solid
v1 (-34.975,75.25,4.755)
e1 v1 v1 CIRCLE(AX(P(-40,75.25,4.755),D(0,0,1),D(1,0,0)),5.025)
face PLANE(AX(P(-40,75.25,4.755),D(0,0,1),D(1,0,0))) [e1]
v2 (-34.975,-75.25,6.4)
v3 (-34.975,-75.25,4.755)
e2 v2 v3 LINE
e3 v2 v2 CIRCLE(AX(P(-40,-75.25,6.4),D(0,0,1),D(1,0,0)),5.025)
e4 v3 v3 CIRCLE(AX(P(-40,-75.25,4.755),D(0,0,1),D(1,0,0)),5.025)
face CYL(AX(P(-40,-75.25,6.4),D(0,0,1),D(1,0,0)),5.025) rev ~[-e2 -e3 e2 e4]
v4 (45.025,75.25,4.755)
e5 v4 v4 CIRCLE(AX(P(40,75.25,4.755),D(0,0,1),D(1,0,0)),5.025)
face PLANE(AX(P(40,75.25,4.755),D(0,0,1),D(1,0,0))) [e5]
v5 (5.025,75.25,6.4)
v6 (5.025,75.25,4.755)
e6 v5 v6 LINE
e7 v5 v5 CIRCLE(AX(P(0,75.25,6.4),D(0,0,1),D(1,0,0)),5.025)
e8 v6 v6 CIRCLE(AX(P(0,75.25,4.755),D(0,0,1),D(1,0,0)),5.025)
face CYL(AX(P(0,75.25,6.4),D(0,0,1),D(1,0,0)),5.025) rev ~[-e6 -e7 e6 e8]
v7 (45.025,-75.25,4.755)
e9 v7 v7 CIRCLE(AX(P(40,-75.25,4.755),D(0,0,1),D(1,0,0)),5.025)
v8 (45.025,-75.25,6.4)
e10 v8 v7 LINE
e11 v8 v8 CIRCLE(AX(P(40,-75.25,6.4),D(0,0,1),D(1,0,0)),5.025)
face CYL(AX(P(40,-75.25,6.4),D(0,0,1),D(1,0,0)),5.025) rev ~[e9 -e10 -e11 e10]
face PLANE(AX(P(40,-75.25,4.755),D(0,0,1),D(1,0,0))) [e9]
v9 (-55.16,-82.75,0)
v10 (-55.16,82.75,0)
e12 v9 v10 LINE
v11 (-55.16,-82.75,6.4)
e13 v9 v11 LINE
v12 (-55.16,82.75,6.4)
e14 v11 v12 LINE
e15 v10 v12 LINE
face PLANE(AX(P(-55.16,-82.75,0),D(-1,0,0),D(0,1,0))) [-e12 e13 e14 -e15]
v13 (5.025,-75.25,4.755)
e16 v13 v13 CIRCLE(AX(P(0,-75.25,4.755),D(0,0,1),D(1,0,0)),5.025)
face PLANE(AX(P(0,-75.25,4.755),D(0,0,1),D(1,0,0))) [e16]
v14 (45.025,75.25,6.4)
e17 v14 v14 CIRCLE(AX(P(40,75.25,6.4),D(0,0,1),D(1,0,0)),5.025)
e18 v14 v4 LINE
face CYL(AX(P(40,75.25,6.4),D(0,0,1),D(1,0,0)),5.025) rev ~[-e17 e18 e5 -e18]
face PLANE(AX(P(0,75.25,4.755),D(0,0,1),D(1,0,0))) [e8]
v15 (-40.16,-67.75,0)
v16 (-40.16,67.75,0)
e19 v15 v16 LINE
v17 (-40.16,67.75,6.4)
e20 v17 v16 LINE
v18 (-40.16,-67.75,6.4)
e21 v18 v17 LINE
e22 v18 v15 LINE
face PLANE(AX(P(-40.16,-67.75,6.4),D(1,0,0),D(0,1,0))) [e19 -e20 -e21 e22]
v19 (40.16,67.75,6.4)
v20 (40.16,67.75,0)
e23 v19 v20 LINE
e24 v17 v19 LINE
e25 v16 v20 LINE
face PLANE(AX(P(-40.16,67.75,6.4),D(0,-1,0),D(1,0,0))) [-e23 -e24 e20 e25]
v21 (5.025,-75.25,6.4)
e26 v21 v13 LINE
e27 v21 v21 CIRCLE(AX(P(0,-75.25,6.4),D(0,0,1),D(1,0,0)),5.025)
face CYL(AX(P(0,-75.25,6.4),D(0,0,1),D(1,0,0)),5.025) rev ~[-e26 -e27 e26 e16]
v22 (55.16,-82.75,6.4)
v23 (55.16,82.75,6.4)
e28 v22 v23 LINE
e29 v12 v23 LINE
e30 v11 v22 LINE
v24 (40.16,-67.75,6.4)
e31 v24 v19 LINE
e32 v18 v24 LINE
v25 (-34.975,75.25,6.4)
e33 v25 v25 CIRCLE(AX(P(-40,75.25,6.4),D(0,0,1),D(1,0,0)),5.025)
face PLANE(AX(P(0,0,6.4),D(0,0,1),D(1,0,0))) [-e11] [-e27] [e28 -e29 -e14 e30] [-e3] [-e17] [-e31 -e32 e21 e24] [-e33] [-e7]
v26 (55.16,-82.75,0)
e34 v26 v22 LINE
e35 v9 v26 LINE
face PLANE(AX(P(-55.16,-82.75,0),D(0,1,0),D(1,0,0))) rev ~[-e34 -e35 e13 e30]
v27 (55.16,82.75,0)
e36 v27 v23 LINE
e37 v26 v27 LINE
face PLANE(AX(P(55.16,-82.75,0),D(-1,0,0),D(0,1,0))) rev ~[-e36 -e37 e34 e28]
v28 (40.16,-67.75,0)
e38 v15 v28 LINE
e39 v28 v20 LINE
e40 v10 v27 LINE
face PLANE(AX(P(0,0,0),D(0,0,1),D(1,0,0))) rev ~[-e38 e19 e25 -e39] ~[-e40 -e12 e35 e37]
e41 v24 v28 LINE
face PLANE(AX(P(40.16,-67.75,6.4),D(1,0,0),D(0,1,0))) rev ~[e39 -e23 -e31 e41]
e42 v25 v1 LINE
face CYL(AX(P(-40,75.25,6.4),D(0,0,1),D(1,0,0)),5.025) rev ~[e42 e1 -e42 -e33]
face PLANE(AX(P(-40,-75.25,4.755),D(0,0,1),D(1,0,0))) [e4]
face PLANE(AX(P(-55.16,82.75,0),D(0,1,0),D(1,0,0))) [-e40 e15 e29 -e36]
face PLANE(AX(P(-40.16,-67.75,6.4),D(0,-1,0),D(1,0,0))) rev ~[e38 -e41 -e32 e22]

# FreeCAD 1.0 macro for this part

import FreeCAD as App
import Part
import Sketcher
from FreeCAD import Vector


def add_polygon(sketch, points):
    """Adds a closed chain of lines whose ends are joined by coincident constraints."""
    first, n = sketch.GeometryCount, len(points)
    for a, b in zip(points, points[1:] + points[:1]):
        sketch.addGeometry(Part.LineSegment(App.Vector(*a, 0), App.Vector(*b, 0)), False)
    for i in range(n):
        sketch.addConstraint(Sketcher.Constraint("Coincident", first + i, 2, first + (i + 1) % n, 1))

doc = App.newDocument("Part")
body = doc.addObject("PartDesign::Body", "Body")

# Sketch on XY plane
sketch1 = body.newObject("Sketcher::SketchObject", "Sketch")
sketch1.AttachmentSupport = (doc.getObject("XY_Plane"), [""])
sketch1.MapMode = "FlatFace"
add_polygon(sketch1, [(-55, 83), (-55, -83), (55, -83), (55, 83)])  # lines 0-3
sketch1.addConstraint([
    Sketcher.Constraint("Vertical", 0),
    Sketcher.Constraint("Horizontal", 1),
    Sketcher.Constraint("Vertical", 2),
    Sketcher.Constraint("Horizontal", 3),
    Sketcher.Constraint("Symmetric", 0, 2, 2, 2, -1, 1),
    Sketcher.Constraint("DistanceY", 0, 2, 0, 1, 165.5),
    Sketcher.Constraint("DistanceX", 1, 1, 1, 2, 110.32),
])
pad1 = body.newObject("PartDesign::Pad", "Pad")
pad1.Profile = sketch1
pad1.Length = 6.4

# Sketch on XY plane
sketch2 = body.newObject("Sketcher::SketchObject", "Sketch001")
sketch2.AttachmentSupport = (doc.getObject("XY_Plane"), [""])
sketch2.MapMode = "FlatFace"
sketch2.AttachmentOffset = App.Placement(Vector(0, 0, 6.4), App.Rotation())
add_polygon(sketch2, [(-40, 68), (-40, -68), (40, -68), (40, 68)])  # lines 0-3
sketch2.addConstraint([
    Sketcher.Constraint("Vertical", 0),
    Sketcher.Constraint("Horizontal", 1),
    Sketcher.Constraint("Vertical", 2),
    Sketcher.Constraint("Horizontal", 3),
    Sketcher.Constraint("Symmetric", 0, 2, 2, 2, -1, 1),
    Sketcher.Constraint("DistanceY", 0, 2, 0, 1, 135.5),
    Sketcher.Constraint("DistanceX", 1, 1, 1, 2, 80.32),
])
pocket1 = body.newObject("PartDesign::Pocket", "Pocket")
pocket1.Profile = sketch2
pocket1.Type = "ThroughAll"

# Sketch on XY plane
sketch3 = body.newObject("Sketcher::SketchObject", "Sketch002")
sketch3.AttachmentSupport = (doc.getObject("XY_Plane"), [""])
sketch3.MapMode = "FlatFace"
sketch3.AttachmentOffset = App.Placement(Vector(0, 0, 6.4), App.Rotation())
sketch3.addGeometry([
    Part.Circle(Vector(0, 75, 0), Vector(0, 0, 1), 5),
    Part.Circle(Vector(0, -75, 0), Vector(0, 0, 1), 5),
], False)
sketch3.addConstraint([
    Sketcher.Constraint("Equal", 0, 1),
    Sketcher.Constraint("Symmetric", 0, 3, 1, 3, -1, 1),
    Sketcher.Constraint("PointOnObject", 0, 3, -2),
    Sketcher.Constraint("Diameter", 0, 10.05),
    Sketcher.Constraint("DistanceY", 1, 3, 0, 3, 150.5),
])
pocket2 = body.newObject("PartDesign::Pocket", "Pocket001")
pocket2.Profile = sketch3
pocket2.Length = 1.645
doc.recompute()

linearpattern = body.newObject("PartDesign::LinearPattern", "LinearPattern")
linearpattern.Originals = [pocket2]
linearpattern.Direction = (doc.getObject("X_Axis"), [""])
linearpattern.Mode = "offset"
linearpattern.Offset = 40
linearpattern.Occurrences = 2
body.Tip = linearpattern
doc.recompute()

linearpattern2 = body.newObject("PartDesign::LinearPattern", "LinearPattern001")
linearpattern2.Originals = [pocket2]
linearpattern2.Direction = (doc.getObject("X_Axis"), [""])
linearpattern2.Mode = "offset"
linearpattern2.Offset = 40
linearpattern2.Occurrences = 2
linearpattern2.Reversed = True
body.Tip = linearpattern2

doc.recompute()
